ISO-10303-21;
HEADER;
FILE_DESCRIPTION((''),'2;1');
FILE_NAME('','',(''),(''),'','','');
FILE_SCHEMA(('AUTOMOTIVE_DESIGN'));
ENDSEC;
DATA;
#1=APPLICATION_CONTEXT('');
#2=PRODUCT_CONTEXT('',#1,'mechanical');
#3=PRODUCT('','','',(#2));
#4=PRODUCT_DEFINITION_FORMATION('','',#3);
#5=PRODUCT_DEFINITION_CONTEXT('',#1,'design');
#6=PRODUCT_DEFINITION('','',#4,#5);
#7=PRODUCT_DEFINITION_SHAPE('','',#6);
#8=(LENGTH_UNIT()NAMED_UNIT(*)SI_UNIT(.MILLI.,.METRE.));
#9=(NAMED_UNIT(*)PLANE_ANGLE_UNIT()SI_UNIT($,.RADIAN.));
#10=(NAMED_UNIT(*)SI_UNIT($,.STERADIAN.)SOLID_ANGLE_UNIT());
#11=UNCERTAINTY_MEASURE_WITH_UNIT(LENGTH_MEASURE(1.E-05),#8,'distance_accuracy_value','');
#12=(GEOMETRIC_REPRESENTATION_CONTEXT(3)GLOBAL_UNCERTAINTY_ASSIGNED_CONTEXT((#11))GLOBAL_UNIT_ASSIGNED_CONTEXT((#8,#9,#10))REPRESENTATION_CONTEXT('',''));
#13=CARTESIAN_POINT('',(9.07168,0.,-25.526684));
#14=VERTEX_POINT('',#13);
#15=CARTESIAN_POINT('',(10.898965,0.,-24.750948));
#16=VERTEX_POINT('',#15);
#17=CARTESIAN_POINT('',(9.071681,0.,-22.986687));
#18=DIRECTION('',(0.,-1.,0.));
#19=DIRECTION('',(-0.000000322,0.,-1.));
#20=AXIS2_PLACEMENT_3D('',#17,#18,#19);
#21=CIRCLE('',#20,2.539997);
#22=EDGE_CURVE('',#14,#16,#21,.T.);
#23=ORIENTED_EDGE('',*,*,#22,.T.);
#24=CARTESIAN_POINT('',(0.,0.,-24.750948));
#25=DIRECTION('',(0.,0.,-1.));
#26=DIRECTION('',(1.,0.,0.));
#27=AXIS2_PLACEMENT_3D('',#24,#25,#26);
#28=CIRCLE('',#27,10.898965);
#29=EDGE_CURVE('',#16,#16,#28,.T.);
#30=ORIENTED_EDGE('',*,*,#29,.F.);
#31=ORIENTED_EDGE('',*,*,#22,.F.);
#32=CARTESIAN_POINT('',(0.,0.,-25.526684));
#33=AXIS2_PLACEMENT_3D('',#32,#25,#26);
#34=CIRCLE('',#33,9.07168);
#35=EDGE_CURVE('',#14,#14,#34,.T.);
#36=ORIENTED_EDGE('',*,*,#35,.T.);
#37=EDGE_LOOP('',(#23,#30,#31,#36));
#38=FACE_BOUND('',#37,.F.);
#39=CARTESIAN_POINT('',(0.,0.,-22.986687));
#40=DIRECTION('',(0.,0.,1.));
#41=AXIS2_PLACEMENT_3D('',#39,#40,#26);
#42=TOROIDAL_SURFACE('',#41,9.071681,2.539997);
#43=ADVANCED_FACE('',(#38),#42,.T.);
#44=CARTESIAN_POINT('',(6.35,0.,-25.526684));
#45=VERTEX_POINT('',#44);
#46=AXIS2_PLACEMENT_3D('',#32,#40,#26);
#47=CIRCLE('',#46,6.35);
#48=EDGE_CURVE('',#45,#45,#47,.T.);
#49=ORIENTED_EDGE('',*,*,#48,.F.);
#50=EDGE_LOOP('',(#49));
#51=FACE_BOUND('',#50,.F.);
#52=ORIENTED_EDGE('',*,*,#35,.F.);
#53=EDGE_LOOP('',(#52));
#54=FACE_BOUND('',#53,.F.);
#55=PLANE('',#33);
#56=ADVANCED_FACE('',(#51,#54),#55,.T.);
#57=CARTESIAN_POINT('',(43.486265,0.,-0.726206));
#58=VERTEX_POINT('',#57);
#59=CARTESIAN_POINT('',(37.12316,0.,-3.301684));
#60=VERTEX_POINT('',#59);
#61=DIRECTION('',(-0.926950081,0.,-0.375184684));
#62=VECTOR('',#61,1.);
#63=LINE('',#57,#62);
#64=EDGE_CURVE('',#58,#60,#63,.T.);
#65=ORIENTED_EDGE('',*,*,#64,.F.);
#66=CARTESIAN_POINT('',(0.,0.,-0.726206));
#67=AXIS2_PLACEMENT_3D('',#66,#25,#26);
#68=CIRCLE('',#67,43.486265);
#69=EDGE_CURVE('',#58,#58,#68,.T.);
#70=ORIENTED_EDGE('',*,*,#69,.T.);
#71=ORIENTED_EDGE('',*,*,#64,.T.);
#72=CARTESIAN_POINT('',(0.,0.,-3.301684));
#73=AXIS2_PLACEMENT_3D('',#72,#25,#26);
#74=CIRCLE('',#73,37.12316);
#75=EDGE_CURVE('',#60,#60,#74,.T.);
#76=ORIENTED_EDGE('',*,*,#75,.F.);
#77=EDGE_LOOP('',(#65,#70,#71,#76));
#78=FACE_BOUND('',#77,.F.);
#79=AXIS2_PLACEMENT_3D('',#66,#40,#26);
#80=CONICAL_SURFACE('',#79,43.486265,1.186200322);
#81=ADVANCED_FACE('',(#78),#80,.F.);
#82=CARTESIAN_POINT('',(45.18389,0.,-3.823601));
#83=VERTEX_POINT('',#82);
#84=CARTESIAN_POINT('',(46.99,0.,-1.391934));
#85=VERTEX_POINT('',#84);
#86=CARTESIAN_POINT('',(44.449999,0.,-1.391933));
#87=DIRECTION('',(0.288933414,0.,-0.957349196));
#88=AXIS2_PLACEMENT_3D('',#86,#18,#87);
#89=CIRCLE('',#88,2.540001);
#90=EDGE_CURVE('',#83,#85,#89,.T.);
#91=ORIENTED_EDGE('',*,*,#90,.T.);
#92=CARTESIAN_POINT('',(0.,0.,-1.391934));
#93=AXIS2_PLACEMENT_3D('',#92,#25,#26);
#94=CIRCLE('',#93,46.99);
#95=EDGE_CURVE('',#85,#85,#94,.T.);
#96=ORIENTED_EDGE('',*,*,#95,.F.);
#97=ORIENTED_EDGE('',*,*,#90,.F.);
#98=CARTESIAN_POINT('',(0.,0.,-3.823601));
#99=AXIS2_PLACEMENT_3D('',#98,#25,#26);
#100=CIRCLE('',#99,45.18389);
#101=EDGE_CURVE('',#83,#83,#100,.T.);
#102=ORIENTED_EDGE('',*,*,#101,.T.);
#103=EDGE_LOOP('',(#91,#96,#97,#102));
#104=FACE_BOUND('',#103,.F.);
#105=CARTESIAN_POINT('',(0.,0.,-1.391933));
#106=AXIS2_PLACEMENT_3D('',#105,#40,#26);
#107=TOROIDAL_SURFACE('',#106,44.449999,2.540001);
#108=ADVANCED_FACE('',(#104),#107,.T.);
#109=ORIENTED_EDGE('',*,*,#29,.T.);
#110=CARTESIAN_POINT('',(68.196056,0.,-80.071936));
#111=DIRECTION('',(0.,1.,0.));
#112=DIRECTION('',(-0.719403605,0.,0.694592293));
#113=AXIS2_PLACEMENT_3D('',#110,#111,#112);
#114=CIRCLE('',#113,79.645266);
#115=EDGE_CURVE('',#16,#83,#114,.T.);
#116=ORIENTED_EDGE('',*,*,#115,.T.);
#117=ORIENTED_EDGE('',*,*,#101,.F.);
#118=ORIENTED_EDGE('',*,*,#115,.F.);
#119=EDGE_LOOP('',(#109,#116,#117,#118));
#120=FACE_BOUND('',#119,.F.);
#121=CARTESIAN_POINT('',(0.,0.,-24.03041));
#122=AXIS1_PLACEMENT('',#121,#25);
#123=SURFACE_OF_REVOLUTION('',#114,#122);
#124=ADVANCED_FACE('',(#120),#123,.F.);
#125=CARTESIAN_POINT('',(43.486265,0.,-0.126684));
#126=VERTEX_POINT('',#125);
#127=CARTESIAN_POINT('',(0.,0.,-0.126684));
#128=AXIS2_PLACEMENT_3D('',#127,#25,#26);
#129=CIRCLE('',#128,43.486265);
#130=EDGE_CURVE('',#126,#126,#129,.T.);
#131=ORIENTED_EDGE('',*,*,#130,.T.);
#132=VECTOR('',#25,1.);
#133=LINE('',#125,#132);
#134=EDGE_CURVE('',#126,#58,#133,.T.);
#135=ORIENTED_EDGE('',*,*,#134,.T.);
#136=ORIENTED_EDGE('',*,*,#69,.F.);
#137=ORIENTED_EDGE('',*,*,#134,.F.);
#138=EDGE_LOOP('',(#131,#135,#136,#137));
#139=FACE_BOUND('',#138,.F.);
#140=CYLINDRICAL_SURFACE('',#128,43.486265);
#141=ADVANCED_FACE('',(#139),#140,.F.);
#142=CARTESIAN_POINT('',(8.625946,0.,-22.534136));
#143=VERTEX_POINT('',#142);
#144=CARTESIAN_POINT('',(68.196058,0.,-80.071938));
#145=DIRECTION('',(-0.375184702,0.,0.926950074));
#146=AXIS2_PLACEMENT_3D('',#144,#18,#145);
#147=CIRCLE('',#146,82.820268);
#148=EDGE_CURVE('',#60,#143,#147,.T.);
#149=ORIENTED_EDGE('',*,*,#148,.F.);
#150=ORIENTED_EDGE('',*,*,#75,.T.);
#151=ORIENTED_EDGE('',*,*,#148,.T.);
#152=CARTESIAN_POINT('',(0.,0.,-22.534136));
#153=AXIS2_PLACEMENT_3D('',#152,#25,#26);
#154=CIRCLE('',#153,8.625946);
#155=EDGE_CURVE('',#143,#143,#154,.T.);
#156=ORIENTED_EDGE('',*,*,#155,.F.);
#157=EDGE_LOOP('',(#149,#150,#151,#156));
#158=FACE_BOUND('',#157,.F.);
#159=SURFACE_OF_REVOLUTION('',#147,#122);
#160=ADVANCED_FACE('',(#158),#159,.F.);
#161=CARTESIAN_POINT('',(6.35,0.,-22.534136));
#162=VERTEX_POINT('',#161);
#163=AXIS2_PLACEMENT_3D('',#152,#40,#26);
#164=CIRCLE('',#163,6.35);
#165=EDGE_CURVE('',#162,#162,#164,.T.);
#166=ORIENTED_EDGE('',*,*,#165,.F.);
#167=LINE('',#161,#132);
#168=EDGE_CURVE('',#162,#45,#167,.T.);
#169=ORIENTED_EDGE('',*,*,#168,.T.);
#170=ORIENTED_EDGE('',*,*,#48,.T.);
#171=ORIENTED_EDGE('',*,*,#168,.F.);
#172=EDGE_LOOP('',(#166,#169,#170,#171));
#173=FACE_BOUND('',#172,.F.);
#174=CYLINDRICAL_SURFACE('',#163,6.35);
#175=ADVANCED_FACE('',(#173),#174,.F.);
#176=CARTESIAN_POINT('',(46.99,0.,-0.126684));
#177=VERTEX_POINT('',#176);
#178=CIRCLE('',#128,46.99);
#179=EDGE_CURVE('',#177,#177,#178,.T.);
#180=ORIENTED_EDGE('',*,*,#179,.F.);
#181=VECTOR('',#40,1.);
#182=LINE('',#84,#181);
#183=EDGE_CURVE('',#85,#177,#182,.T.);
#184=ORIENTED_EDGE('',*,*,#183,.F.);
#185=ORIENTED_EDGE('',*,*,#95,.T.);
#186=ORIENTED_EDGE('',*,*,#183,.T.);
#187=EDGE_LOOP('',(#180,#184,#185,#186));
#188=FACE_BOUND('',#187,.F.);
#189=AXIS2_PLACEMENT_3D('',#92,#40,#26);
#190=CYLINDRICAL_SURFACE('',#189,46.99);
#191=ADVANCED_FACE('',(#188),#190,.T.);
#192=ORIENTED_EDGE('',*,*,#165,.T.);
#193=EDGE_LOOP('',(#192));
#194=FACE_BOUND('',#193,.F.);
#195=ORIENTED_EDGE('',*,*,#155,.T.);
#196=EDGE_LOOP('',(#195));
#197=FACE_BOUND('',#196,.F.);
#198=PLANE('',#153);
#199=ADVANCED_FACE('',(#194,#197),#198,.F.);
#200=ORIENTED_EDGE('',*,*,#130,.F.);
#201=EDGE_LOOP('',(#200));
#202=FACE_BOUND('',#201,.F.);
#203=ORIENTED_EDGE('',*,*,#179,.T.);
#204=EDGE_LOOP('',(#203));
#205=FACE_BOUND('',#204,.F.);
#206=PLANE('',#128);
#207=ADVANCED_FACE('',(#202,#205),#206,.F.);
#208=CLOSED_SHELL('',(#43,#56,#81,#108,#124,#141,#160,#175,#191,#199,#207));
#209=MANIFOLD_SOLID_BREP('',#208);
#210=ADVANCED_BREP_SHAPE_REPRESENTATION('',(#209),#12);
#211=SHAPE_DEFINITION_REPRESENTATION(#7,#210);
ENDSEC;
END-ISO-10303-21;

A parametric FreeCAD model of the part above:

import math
import FreeCAD as App
import Part
import Sketcher
from FreeCAD import Vector
Q = App.Units.Quantity

doc = App.newDocument("Part")
body = doc.addObject("PartDesign::Body", "Body")

# Sketch on XZ plane
sketch1 = doc.addObject("Sketcher::SketchObject", "Sketch")
body.addObject(sketch1)
sketch1.AttachmentSupport = (doc.XZ_Plane, [""])
sketch1.MapMode = "FlatFace"
sketch1.addGeometry([
    Part.LineSegment(Vector(46.99, -0.126684, 0), Vector(43.486265, -0.126684, 0)),  # 0
    Part.LineSegment(Vector(43.486265, -0.126684, 0), Vector(43.486265, -0.726206, 0)),  # 1
    Part.LineSegment(Vector(43.486265, -0.726206, 0), Vector(37.12316, -3.301684, 0)),  # 2
    Part.ArcOfCircle(Part.Circle(Vector(68.196058, -80.071938, 0), Vector(0, 0, 1), 82.820268), math.radians(112.035729), math.radians(135.99422)),  # 3
    Part.LineSegment(Vector(8.625946, -22.534136, 0), Vector(0, -22.534136, 0)),  # 4
    Part.LineSegment(Vector(0, -22.534136, 0), Vector(0, -25.526684, 0)),  # 5
    Part.LineSegment(Vector(0, -25.526684, 0), Vector(5.715, -25.526684, 0)),  # 6
    Part.LineSegment(Vector(5.715, -25.526684, 0), Vector(5.715, -25.709136, 0)),  # 7
    Part.ArcOfCircle(Part.Circle(Vector(68.381643, -80.23389, 0), Vector(0, 0, 1), 83.066581), math.radians(138.807219), math.radians(138.974246)),  # 8
    Part.LineSegment(Vector(5.874215, -25.526684, 0), Vector(9.07168, -25.526684, 0)),  # 9
    Part.ArcOfCircle(Part.Circle(Vector(9.071681, -22.986687, 0), Vector(0, 0, 1), 2.539997), math.radians(-90.000018), math.radians(-43.994693)),  # 10
    Part.ArcOfCircle(Part.Circle(Vector(68.196056, -80.071936, 0), Vector(0, 0, 1), 79.645266), math.radians(106.794103), math.radians(136.005263)),  # 11
    Part.ArcOfCircle(Part.Circle(Vector(44.449999, -1.391933, 0), Vector(0, 0, 1), 2.540001), math.radians(-73.205888), math.radians(-0.000025)),  # 12
    Part.LineSegment(Vector(46.99, -1.391934, 0), Vector(46.99, -0.126684, 0)),  # 13
], False)
sketch1.addConstraint([
    Sketcher.Constraint("Coincident", 0, 2, 1, 1),
    Sketcher.Constraint("Coincident", 1, 2, 2, 1),
    Sketcher.Constraint("Coincident", 2, 2, 3, 1),
    Sketcher.Constraint("Coincident", 3, 2, 4, 1),
    Sketcher.Constraint("Coincident", 4, 2, 5, 1),
    Sketcher.Constraint("Coincident", 5, 2, 6, 1),
    Sketcher.Constraint("Coincident", 6, 2, 7, 1),
    Sketcher.Constraint("Coincident", 7, 2, 8, 2),
    Sketcher.Constraint("Coincident", 8, 1, 9, 1),
    Sketcher.Constraint("Coincident", 9, 2, 10, 1),
    Sketcher.Constraint("Coincident", 10, 2, 11, 2),
    Sketcher.Constraint("Coincident", 11, 1, 12, 1),
    Sketcher.Constraint("Coincident", 12, 2, 13, 1),
    Sketcher.Constraint("Coincident", 13, 2, 0, 1),
    Sketcher.Constraint("Horizontal", 0),
    Sketcher.Constraint("Vertical", 1),
    Sketcher.Constraint("Horizontal", 4),
    Sketcher.Constraint("Vertical", 5),
    Sketcher.Constraint("Horizontal", 6),
    Sketcher.Constraint("Vertical", 7),
    Sketcher.Constraint("Horizontal", 9),
    Sketcher.Constraint("Vertical", 13),
    Sketcher.Constraint("Coincident", 11, 3, 3, 3),
    Sketcher.Constraint("PointOnObject", 4, 2, -2),
    Sketcher.Constraint("Radius", 10, Q("0.0999999 in")),
    Sketcher.Constraint("Radius", 12, Q("0.1 in")),
    Sketcher.Constraint("DistanceY", 10, 3, 0, 2, Q("0.9000001 in")),
    Sketcher.Constraint("DistanceY", 5, 2, 10, 3, Q("0.0999999 in")),
    Sketcher.Constraint("DistanceX", 6, 1, 6, 2, Q("0.225 in")),
    Sketcher.Constraint("DistanceX", -1, 1, 12, 3, Q("1.75 in")),
    Sketcher.Constraint("Radius", 3, 82.820268),
    Sketcher.Constraint("Radius", 8, 83.066581),
    Sketcher.Constraint("DistanceY", 2, 2, 0, 2, Q("0.125 in")),
    Sketcher.Constraint("DistanceY", 7, 2, 3, 2, Q("0.125 in")),
    Sketcher.Constraint("Radius", 11, 79.645266),
    Sketcher.Constraint("DistanceX", 10, 2, 11, 1, Q("1.3498002 in")),
    Sketcher.Constraint("DistanceY", 1, 2, 1, 1, 0.599522),
    Sketcher.Constraint("DistanceY", 13, 1, 13, 2, 1.26525),
    Sketcher.Constraint("DistanceY", 11, 1, -1, 1, 3.823601),
    Sketcher.Constraint("Distance", 2, 6.864561),
    Sketcher.Constraint("DistanceX", 0, 2, 0, 1, 3.503735),
    Sketcher.Constraint("DistanceX", 4, 2, 4, 1, 8.625946),
    Sketcher.Constraint("DistanceX", 9, 1, 9, 2, 3.197465),
    Sketcher.Constraint("DistanceY", 5, 2, 5, 1, 2.992548),
    Sketcher.Constraint("DistanceY", 8, 3, -1, 1, 80.23389),
    Sketcher.Constraint("DistanceY", 10, 2, -1, 1, 24.750948),
])
revolution = doc.addObject("PartDesign::Revolution", "Revolution")
body.addObject(revolution)
revolution.Profile = sketch1
revolution.ReferenceAxis = (sketch1, ["V_Axis"])
revolution.Angle = 360

# Sketch on XY plane
sketch2 = doc.addObject("Sketcher::SketchObject", "Sketch001")
body.addObject(sketch2)
sketch2.AttachmentSupport = (doc.XY_Plane, [""])
sketch2.MapMode = "FlatFace"
sketch2.AttachmentOffset = App.Placement(Vector(0, 0, -22.534136), App.Rotation())
sketch2.addGeometry(Part.Circle(Vector(0, 0, 0), Vector(0, 0, 1), 6), False)
sketch2.addConstraint([
    Sketcher.Constraint("Coincident", 0, 3, -1, 1),
    Sketcher.Constraint("Diameter", 0, Q("0.5 in")),
])
pocket1 = doc.addObject("PartDesign::Pocket", "Pocket")
body.addObject(pocket1)
pocket1.Profile = sketch2
pocket1.Type = "ThroughAll"

doc.recompute()
